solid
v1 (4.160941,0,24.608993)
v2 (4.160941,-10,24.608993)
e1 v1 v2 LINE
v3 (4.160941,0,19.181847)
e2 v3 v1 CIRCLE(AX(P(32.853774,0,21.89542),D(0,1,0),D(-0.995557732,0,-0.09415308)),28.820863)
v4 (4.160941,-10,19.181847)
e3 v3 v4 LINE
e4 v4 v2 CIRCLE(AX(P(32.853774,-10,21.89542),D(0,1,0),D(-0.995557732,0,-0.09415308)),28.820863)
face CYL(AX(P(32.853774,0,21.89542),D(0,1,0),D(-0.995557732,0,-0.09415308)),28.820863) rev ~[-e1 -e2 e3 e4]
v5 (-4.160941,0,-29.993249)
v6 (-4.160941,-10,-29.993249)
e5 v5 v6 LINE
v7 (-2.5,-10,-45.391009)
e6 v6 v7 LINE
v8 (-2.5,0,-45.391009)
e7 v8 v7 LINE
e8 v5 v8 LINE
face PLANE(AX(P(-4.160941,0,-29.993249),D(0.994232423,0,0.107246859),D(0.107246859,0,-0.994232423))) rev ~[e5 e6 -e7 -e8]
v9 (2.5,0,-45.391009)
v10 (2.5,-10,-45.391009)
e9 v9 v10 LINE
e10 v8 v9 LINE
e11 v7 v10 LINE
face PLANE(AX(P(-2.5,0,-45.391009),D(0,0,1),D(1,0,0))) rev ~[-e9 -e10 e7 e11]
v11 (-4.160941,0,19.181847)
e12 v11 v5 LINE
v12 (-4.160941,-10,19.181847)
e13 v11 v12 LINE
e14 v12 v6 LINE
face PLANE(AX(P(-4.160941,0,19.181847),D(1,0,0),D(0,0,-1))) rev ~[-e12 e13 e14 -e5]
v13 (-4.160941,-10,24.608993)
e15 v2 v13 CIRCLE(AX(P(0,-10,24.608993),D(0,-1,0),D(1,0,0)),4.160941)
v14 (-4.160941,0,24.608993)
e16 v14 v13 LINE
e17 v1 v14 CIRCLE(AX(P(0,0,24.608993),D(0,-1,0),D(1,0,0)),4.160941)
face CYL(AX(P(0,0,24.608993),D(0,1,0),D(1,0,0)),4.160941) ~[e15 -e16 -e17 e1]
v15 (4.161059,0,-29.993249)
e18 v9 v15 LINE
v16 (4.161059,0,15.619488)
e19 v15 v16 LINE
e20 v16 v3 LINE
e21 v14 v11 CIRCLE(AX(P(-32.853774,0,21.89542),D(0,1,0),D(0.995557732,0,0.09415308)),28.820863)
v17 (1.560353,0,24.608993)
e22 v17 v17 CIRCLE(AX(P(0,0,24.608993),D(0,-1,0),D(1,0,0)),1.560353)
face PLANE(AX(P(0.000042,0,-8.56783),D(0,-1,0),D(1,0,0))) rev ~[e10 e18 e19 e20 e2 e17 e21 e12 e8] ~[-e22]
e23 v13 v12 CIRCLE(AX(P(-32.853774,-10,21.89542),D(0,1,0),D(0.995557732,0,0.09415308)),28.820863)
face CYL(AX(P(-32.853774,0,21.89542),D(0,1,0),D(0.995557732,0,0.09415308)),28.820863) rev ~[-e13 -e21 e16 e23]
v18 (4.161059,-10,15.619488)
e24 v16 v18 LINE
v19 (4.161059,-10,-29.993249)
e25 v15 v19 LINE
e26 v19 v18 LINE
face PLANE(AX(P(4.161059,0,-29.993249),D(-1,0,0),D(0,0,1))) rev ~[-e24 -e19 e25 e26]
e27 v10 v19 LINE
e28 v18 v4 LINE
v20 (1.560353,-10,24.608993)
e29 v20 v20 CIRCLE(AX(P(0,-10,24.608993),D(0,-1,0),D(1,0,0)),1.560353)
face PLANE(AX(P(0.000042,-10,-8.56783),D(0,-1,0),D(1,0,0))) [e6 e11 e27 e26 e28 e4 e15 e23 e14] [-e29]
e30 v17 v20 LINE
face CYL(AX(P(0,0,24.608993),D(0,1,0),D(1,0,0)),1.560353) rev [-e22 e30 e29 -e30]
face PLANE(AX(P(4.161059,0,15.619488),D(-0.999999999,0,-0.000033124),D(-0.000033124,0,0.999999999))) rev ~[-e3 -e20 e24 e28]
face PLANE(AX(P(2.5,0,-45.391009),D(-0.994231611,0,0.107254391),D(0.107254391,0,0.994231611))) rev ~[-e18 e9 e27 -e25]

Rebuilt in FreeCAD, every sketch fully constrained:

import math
import FreeCAD as App
import Part
import Sketcher
from FreeCAD import Vector
Q = App.Units.Quantity

doc = App.newDocument("Part")
params = doc.addObject("Spreadsheet::Sheet", "Params")
for row, (alias, value) in enumerate([
    ("sketch1_width", "5 mm"),
    ("pad1_length", "10 mm"),
], start=1):
    params.set(f"A{row}", alias)
    params.set(f"B{row}", "=" + value)
    params.setAlias(f"B{row}", alias)

body = doc.addObject("PartDesign::Body", "Body")

sketch1 = body.newObject("Sketcher::SketchObject", "Sketch")
sketch1.AttachmentSupport = (doc.getObject("XZ_Plane"), [""])
sketch1.MapMode = "FlatFace"
sketch1.addGeometry([
    Part.ArcOfCircle(Part.Circle(Vector(-32.9, 21.9, 0), Vector(0, 0, 1), 28.8), math.radians(-5.4), math.radians(5.4)),
    Part.LineSegment(Vector(-4.2, 19.2, 0), Vector(-4.2, -30, 0)),
    Part.LineSegment(Vector(-4.2, -30, 0), Vector(-2.5, -45.4, 0)),
    Part.LineSegment(Vector(-2.5, -45.4, 0), Vector(2.5, -45.4, 0)),
    Part.LineSegment(Vector(2.5, -45.4, 0), Vector(4.2, -30, 0)),
    Part.LineSegment(Vector(4.2, -30, 0), Vector(4.2, 15.6, 0)),
    Part.LineSegment(Vector(4.2, 15.6, 0), Vector(4.2, 19.2, 0)),
    Part.ArcOfCircle(Part.Circle(Vector(32.9, 21.9, 0), Vector(0, 0, 1), 28.8), math.radians(174.6), math.radians(185.4)),
    Part.ArcOfCircle(Part.Circle(Vector(0, 24.6, 0), Vector(0, 0, 1), 4.2), math.radians(0), math.radians(180)),
    Part.Circle(Vector(0, 24.6, 0), Vector(0, 0, 1), 1.6),
], False)
sketch1.addConstraint([
    Sketcher.Constraint("Coincident", 0, 1, 1, 1),
    Sketcher.Constraint("Coincident", 1, 2, 2, 1),
    Sketcher.Constraint("Coincident", 2, 2, 3, 1),
    Sketcher.Constraint("Coincident", 3, 2, 4, 1),
    Sketcher.Constraint("Coincident", 4, 2, 5, 1),
    Sketcher.Constraint("Coincident", 5, 2, 6, 1),
    Sketcher.Constraint("Coincident", 6, 2, 7, 2),
    Sketcher.Constraint("Coincident", 7, 1, 8, 1),
    Sketcher.Constraint("Coincident", 8, 2, 0, 2),
    Sketcher.Constraint("Vertical", 1),
    Sketcher.Constraint("Horizontal", 3),
    Sketcher.Constraint("Vertical", 5),
    Sketcher.Constraint("Coincident", 9, 3, 8, 3),
    Sketcher.Constraint("Equal", 0, 7),
    Sketcher.Constraint("Symmetric", 0, 3, 7, 3, -2),
    Sketcher.Constraint("PointOnObject", 8, 3, -2),
    Sketcher.Constraint("Horizontal", 1, 2, 4, 2),
    Sketcher.Constraint("Horizontal", 0, 1, 6, 2),
    Sketcher.Constraint("Horizontal", 9, 3, 7, 1),
    Sketcher.Constraint("Vertical", 6, 2, 7, 1),
    Sketcher.Constraint("DistanceX", 3, 1, 3, 2, Q("5 mm")),
    Sketcher.Constraint("DistanceY", 2, 2, 8, 3, Q("70.000002 mm")),
    Sketcher.Constraint("DistanceX", 2, 2, -1, 1, Q("2.5 mm")),
    Sketcher.Constraint("Radius", 8, Q("4.160941 mm")),
    Sketcher.Constraint("Diameter", 9, Q("3.120706 mm")),
    Sketcher.Constraint("Radius", 0, Q("28.820863 mm")),
    Sketcher.Constraint("DistanceX", 1, 2, 4, 2, Q("8.322 mm")),
    Sketcher.Constraint("Distance", 6, Q("3.562359 mm")),
    Sketcher.Constraint("DistanceY", 1, 2, 1, 1, Q("49.175096 mm")),
    Sketcher.Constraint("DistanceY", -1, 1, 0, 3, Q("21.89542 mm")),
    Sketcher.Constraint("DistanceY", 1, 2, -1, 1, Q("29.993249 mm")),
])
sketch1.setExpression("Constraints[20]", "Params.sketch1_width")
pad1 = body.newObject("PartDesign::Pad", "Pad")
pad1.Profile = sketch1
pad1.setExpression("Length", "Params.pad1_length")

doc.recompute()
